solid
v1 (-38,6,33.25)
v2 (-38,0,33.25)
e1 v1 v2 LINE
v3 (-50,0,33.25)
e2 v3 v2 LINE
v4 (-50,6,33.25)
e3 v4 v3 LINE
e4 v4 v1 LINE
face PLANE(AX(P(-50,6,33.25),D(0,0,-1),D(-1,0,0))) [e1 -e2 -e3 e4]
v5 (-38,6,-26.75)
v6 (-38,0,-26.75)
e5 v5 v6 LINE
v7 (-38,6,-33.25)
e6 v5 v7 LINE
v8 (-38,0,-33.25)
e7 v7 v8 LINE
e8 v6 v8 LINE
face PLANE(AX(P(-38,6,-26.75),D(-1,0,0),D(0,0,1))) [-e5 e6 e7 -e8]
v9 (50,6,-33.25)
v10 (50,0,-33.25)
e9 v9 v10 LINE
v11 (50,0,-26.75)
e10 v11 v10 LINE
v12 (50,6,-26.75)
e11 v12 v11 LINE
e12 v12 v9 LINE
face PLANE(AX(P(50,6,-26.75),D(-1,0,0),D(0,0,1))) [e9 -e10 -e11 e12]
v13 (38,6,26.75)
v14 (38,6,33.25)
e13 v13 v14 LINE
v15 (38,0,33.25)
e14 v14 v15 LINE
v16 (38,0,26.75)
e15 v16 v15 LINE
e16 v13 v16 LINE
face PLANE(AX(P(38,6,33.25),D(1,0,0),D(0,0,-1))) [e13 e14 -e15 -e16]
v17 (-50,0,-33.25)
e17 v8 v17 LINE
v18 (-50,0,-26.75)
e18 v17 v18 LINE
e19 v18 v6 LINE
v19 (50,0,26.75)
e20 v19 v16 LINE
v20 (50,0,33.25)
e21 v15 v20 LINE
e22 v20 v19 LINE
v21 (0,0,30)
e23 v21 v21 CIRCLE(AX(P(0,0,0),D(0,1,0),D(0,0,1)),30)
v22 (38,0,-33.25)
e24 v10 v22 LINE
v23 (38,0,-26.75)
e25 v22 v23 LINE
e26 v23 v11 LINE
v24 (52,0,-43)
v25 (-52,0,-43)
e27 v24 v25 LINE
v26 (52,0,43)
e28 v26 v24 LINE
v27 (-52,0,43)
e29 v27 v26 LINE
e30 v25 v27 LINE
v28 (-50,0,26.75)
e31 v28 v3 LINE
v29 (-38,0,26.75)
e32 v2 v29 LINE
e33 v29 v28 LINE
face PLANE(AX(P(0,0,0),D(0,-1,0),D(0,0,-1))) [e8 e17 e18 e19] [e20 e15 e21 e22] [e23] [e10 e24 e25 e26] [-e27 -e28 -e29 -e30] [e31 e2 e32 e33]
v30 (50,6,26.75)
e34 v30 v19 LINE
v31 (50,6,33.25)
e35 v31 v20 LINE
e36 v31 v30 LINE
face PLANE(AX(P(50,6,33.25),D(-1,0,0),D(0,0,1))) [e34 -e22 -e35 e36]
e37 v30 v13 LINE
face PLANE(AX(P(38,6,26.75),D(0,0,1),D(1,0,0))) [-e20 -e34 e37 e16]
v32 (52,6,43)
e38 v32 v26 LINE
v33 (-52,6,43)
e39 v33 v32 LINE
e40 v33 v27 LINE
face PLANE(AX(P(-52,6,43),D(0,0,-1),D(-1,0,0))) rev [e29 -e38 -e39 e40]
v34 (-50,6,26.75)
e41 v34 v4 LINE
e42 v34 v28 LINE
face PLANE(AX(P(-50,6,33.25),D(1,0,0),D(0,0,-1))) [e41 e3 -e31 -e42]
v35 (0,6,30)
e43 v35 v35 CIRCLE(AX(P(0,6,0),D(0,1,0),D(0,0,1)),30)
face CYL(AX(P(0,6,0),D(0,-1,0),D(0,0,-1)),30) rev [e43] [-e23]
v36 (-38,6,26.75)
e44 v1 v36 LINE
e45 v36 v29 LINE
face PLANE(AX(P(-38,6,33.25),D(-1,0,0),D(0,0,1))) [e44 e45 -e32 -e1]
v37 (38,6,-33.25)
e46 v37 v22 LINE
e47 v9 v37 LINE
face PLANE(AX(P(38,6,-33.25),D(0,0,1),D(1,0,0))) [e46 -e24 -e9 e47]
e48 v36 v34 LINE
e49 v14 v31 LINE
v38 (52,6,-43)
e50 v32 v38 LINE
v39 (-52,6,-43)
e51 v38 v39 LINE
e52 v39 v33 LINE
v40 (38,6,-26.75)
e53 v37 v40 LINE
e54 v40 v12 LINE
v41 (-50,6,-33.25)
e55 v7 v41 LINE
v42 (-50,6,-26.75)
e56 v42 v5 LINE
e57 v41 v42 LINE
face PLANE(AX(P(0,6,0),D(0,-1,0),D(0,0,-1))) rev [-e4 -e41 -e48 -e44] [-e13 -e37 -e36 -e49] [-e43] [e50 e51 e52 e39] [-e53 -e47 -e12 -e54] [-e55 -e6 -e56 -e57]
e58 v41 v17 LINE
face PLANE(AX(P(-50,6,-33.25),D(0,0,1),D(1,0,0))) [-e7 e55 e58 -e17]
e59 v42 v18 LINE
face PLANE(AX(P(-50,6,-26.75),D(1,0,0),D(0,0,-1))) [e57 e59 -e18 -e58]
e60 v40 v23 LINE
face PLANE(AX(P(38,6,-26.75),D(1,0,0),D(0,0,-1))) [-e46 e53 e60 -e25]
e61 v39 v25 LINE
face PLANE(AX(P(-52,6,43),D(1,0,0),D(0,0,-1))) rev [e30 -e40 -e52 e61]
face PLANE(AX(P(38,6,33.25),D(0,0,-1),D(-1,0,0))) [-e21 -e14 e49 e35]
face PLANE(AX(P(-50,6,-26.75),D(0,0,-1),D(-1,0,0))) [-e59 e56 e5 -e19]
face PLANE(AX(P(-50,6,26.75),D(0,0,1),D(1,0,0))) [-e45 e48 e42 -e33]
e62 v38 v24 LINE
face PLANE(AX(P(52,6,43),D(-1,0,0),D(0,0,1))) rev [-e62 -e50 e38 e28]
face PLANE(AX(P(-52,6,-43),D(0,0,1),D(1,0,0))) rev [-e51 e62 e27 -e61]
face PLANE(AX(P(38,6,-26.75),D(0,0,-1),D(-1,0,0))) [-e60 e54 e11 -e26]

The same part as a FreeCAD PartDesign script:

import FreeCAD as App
import Part
import Sketcher
Q = App.Units.Quantity

doc = App.newDocument("Part")
params = doc.addObject("Spreadsheet::Sheet", "Params")
for row, (alias, value) in enumerate([
    ("sketch1_diameter", "60 mm"),
    ("sketch1_width", "104 mm"),
    ("sketch1_width2", "12 mm"),
    ("sketch1_height", "86 mm"),
    ("sketch1_height2", "6.5 mm"),
    ("pad1_length", "6 mm"),
], start=1):
    params.set(f"A{row}", alias)
    params.set(f"B{row}", "=" + value)
    params.setAlias(f"B{row}", alias)

body = doc.addObject("PartDesign::Body", "Body")

# Sketch on XZ plane
sketch1 = doc.addObject("Sketcher::SketchObject", "Sketch")
body.addObject(sketch1)
sketch1.AttachmentSupport = (doc.XZ_Plane, [""])
sketch1.MapMode = "FlatFace"
sketch1.addGeometry(Part.LineSegment(App.Vector(-52, -43, 0), App.Vector(-52, 43, 0)), False)
sketch1.addGeometry(Part.LineSegment(App.Vector(-52, 43, 0), App.Vector(52, 43, 0)), False)
sketch1.addGeometry(Part.LineSegment(App.Vector(52, 43, 0), App.Vector(52, -43, 0)), False)
sketch1.addGeometry(Part.LineSegment(App.Vector(52, -43, 0), App.Vector(-52, -43, 0)), False)
sketch1.addGeometry(Part.LineSegment(App.Vector(-38, 33, 0), App.Vector(-50, 33, 0)), False)
sketch1.addGeometry(Part.LineSegment(App.Vector(-50, 33, 0), App.Vector(-50, 27, 0)), False)
sketch1.addGeometry(Part.LineSegment(App.Vector(-50, 27, 0), App.Vector(-38, 27, 0)), False)
sketch1.addGeometry(Part.LineSegment(App.Vector(-38, 27, 0), App.Vector(-38, 33, 0)), False)
sketch1.addGeometry(Part.LineSegment(App.Vector(50, 33, 0), App.Vector(38, 33, 0)), False)
sketch1.addGeometry(Part.LineSegment(App.Vector(38, 33, 0), App.Vector(38, 27, 0)), False)
sketch1.addGeometry(Part.LineSegment(App.Vector(38, 27, 0), App.Vector(50, 27, 0)), False)
sketch1.addGeometry(Part.LineSegment(App.Vector(50, 27, 0), App.Vector(50, 33, 0)), False)
sketch1.addGeometry(Part.LineSegment(App.Vector(-38, -27, 0), App.Vector(-50, -27, 0)), False)
sketch1.addGeometry(Part.LineSegment(App.Vector(-50, -27, 0), App.Vector(-50, -33, 0)), False)
sketch1.addGeometry(Part.LineSegment(App.Vector(-50, -33, 0), App.Vector(-38, -33, 0)), False)
sketch1.addGeometry(Part.LineSegment(App.Vector(-38, -33, 0), App.Vector(-38, -27, 0)), False)
sketch1.addGeometry(Part.Circle(App.Vector(0, 0, 0), App.Vector(0, 0, 1), 30), False)
sketch1.addGeometry(Part.LineSegment(App.Vector(50, -27, 0), App.Vector(38, -27, 0)), False)
sketch1.addGeometry(Part.LineSegment(App.Vector(38, -27, 0), App.Vector(38, -33, 0)), False)
sketch1.addGeometry(Part.LineSegment(App.Vector(38, -33, 0), App.Vector(50, -33, 0)), False)
sketch1.addGeometry(Part.LineSegment(App.Vector(50, -33, 0), App.Vector(50, -27, 0)), False)
sketch1.addConstraint(Sketcher.Constraint("Coincident", 0, 2, 1, 1))
sketch1.addConstraint(Sketcher.Constraint("Coincident", 1, 2, 2, 1))
sketch1.addConstraint(Sketcher.Constraint("Coincident", 2, 2, 3, 1))
sketch1.addConstraint(Sketcher.Constraint("Coincident", 3, 2, 0, 1))
sketch1.addConstraint(Sketcher.Constraint("Coincident", 4, 2, 5, 1))
sketch1.addConstraint(Sketcher.Constraint("Coincident", 5, 2, 6, 1))
sketch1.addConstraint(Sketcher.Constraint("Coincident", 6, 2, 7, 1))
sketch1.addConstraint(Sketcher.Constraint("Coincident", 7, 2, 4, 1))
sketch1.addConstraint(Sketcher.Constraint("Coincident", 8, 2, 9, 1))
sketch1.addConstraint(Sketcher.Constraint("Coincident", 9, 2, 10, 1))
sketch1.addConstraint(Sketcher.Constraint("Coincident", 10, 2, 11, 1))
sketch1.addConstraint(Sketcher.Constraint("Coincident", 11, 2, 8, 1))
sketch1.addConstraint(Sketcher.Constraint("Coincident", 12, 2, 13, 1))
sketch1.addConstraint(Sketcher.Constraint("Coincident", 13, 2, 14, 1))
sketch1.addConstraint(Sketcher.Constraint("Coincident", 14, 2, 15, 1))
sketch1.addConstraint(Sketcher.Constraint("Coincident", 15, 2, 12, 1))
sketch1.addConstraint(Sketcher.Constraint("Coincident", 17, 2, 18, 1))
sketch1.addConstraint(Sketcher.Constraint("Coincident", 18, 2, 19, 1))
sketch1.addConstraint(Sketcher.Constraint("Coincident", 19, 2, 20, 1))
sketch1.addConstraint(Sketcher.Constraint("Coincident", 20, 2, 17, 1))
sketch1.addConstraint(Sketcher.Constraint("Vertical", 0))
sketch1.addConstraint(Sketcher.Constraint("Horizontal", 1))
sketch1.addConstraint(Sketcher.Constraint("Vertical", 2))
sketch1.addConstraint(Sketcher.Constraint("Horizontal", 3))
sketch1.addConstraint(Sketcher.Constraint("Horizontal", 4))
sketch1.addConstraint(Sketcher.Constraint("Vertical", 5))
sketch1.addConstraint(Sketcher.Constraint("Horizontal", 6))
sketch1.addConstraint(Sketcher.Constraint("Vertical", 7))
sketch1.addConstraint(Sketcher.Constraint("Horizontal", 8))
sketch1.addConstraint(Sketcher.Constraint("Vertical", 9))
sketch1.addConstraint(Sketcher.Constraint("Horizontal", 10))
sketch1.addConstraint(Sketcher.Constraint("Vertical", 11))
sketch1.addConstraint(Sketcher.Constraint("Horizontal", 12))
sketch1.addConstraint(Sketcher.Constraint("Vertical", 13))
sketch1.addConstraint(Sketcher.Constraint("Horizontal", 14))
sketch1.addConstraint(Sketcher.Constraint("Vertical", 15))
sketch1.addConstraint(Sketcher.Constraint("Horizontal", 17))
sketch1.addConstraint(Sketcher.Constraint("Vertical", 18))
sketch1.addConstraint(Sketcher.Constraint("Horizontal", 19))
sketch1.addConstraint(Sketcher.Constraint("Vertical", 20))
sketch1.addConstraint(Sketcher.Constraint("Coincident", 16, 3, -1, 1))
sketch1.addConstraint(Sketcher.Constraint("Symmetric", 0, 2, 2, 2, -1, 1))
sketch1.addConstraint(Sketcher.Constraint("Symmetric", 10, 2, 12, 2, -1, 1))
sketch1.addConstraint(Sketcher.Constraint("Symmetric", 8, 2, 14, 2, -1, 1))
sketch1.addConstraint(Sketcher.Constraint("Symmetric", 6, 2, 17, 2, -1, 1))
sketch1.addConstraint(Sketcher.Constraint("Symmetric", 4, 2, 19, 2, -1, 1))
sketch1.addConstraint(Sketcher.Constraint("Symmetric", 7, 2, 8, 2, -2))
sketch1.addConstraint(Sketcher.Constraint("Symmetric", 5, 2, 10, 2, -2))
sketch1.addConstraint(Sketcher.Constraint("Diameter", 16, Q("60 mm")))
sketch1.addConstraint(Sketcher.Constraint("DistanceX", 1, 1, 1, 2, Q("104 mm")))
sketch1.addConstraint(Sketcher.Constraint("DistanceX", 4, 2, 4, 1, Q("12 mm")))
sketch1.addConstraint(Sketcher.Constraint("DistanceY", 0, 1, 0, 2, Q("86 mm")))
sketch1.addConstraint(Sketcher.Constraint("DistanceY", 5, 2, 5, 1, Q("6.5 mm")))
sketch1.addConstraint(Sketcher.Constraint("DistanceX", 4, 2, -1, 1, Q("50 mm")))
sketch1.addConstraint(Sketcher.Constraint("DistanceY", 12, 2, 4, 2, Q("60 mm")))
sketch1.setExpression("Constraints[48]", "Params.sketch1_diameter")
sketch1.setExpression("Constraints[49]", "Params.sketch1_width")
sketch1.setExpression("Constraints[50]", "Params.sketch1_width2")
sketch1.setExpression("Constraints[51]", "Params.sketch1_height")
sketch1.setExpression("Constraints[52]", "Params.sketch1_height2")
pad1 = doc.addObject("PartDesign::Pad", "Pad")
body.addObject(pad1)
pad1.Profile = sketch1
pad1.setExpression("Length", "Params.pad1_length")
pad1.Reversed = True

doc.recompute()
